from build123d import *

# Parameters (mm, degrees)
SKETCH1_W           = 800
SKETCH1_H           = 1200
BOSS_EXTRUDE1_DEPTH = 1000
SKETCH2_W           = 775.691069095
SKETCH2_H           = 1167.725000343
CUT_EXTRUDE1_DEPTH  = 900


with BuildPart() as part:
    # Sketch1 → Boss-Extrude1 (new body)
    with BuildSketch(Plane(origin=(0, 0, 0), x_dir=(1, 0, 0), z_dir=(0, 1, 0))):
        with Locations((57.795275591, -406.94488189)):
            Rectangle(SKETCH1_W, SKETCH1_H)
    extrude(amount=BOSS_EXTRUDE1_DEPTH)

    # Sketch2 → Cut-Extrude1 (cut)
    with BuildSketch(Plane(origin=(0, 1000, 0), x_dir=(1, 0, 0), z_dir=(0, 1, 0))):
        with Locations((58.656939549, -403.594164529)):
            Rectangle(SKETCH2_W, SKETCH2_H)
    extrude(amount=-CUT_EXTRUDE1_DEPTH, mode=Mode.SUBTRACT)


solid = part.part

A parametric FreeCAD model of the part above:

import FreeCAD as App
import Part
import Sketcher

V = App.Vector
Q = App.Units.Quantity

doc = App.newDocument("Part")
body = doc.addObject("PartDesign::Body", "Body")

# Sketch on XZ plane
sketch1 = doc.addObject("Sketcher::SketchObject", "Sketch")
body.addObject(sketch1)
sketch1.AttachmentSupport = (doc.XZ_Plane, [""])
sketch1.MapMode = "FlatFace"
sketch1.addGeometry([
    Part.LineSegment(V(-342, -193, 0), V(-342, 1007, 0)),
    Part.LineSegment(V(-342, 1007, 0), V(458, 1007, 0)),
    Part.LineSegment(V(458, 1007, 0), V(458, -193, 0)),
    Part.LineSegment(V(458, -193, 0), V(-342, -193, 0)),
], False)
sketch1.addConstraint([
    Sketcher.Constraint("Coincident", 0, 2, 1, 1),
    Sketcher.Constraint("Coincident", 1, 2, 2, 1),
    Sketcher.Constraint("Coincident", 2, 2, 3, 1),
    Sketcher.Constraint("Coincident", 3, 2, 0, 1),
    Sketcher.Constraint("Vertical", 0),
    Sketcher.Constraint("Horizontal", 1),
    Sketcher.Constraint("Vertical", 2),
    Sketcher.Constraint("Horizontal", 3),
    Sketcher.Constraint("DistanceX", 1, 1, 1, 2, Q("800 mm")),
    Sketcher.Constraint("DistanceY", 0, 1, 0, 2, Q("1200 mm")),
    Sketcher.Constraint("DistanceY", -1, 1, 0, 2, Q("1006.944882 mm")),
    Sketcher.Constraint("DistanceX", 0, 2, -1, 1, Q("342.204724 mm")),
])
pad1 = doc.addObject("PartDesign::Pad", "Pad")
body.addObject(pad1)
pad1.Profile = sketch1
pad1.Length = 1000
pad1.Reversed = True

# Sketch on XZ plane
sketch2 = doc.addObject("Sketcher::SketchObject", "Sketch001")
body.addObject(sketch2)
sketch2.AttachmentSupport = (doc.XZ_Plane, [""])
sketch2.MapMode = "FlatFace"
sketch2.AttachmentOffset = App.Placement(V(0, 0, -1000), App.Rotation())
sketch2.addGeometry([
    Part.LineSegment(V(-329, -180, 0), V(-329, 987, 0)),
    Part.LineSegment(V(-329, 987, 0), V(447, 987, 0)),
    Part.LineSegment(V(447, 987, 0), V(447, -180, 0)),
    Part.LineSegment(V(447, -180, 0), V(-329, -180, 0)),
], False)
sketch2.addConstraint([
    Sketcher.Constraint("Coincident", 0, 2, 1, 1),
    Sketcher.Constraint("Coincident", 1, 2, 2, 1),
    Sketcher.Constraint("Coincident", 2, 2, 3, 1),
    Sketcher.Constraint("Coincident", 3, 2, 0, 1),
    Sketcher.Constraint("Vertical", 0),
    Sketcher.Constraint("Horizontal", 1),
    Sketcher.Constraint("Vertical", 2),
    Sketcher.Constraint("Horizontal", 3),
    Sketcher.Constraint("DistanceY", 0, 1, 0, 2, Q("1167.725 mm")),
    Sketcher.Constraint("DistanceX", 1, 1, 1, 2, Q("775.691069 mm")),
    Sketcher.Constraint("DistanceX", 0, 2, -1, 1, Q("329.188595 mm")),
    Sketcher.Constraint("DistanceY", -1, 1, 0, 2, Q("987.456665 mm")),
])
pocket1 = doc.addObject("PartDesign::Pocket", "Pocket")
body.addObject(pocket1)
pocket1.Profile = sketch2
pocket1.Length = 900
pocket1.Reversed = True

doc.recompute()
